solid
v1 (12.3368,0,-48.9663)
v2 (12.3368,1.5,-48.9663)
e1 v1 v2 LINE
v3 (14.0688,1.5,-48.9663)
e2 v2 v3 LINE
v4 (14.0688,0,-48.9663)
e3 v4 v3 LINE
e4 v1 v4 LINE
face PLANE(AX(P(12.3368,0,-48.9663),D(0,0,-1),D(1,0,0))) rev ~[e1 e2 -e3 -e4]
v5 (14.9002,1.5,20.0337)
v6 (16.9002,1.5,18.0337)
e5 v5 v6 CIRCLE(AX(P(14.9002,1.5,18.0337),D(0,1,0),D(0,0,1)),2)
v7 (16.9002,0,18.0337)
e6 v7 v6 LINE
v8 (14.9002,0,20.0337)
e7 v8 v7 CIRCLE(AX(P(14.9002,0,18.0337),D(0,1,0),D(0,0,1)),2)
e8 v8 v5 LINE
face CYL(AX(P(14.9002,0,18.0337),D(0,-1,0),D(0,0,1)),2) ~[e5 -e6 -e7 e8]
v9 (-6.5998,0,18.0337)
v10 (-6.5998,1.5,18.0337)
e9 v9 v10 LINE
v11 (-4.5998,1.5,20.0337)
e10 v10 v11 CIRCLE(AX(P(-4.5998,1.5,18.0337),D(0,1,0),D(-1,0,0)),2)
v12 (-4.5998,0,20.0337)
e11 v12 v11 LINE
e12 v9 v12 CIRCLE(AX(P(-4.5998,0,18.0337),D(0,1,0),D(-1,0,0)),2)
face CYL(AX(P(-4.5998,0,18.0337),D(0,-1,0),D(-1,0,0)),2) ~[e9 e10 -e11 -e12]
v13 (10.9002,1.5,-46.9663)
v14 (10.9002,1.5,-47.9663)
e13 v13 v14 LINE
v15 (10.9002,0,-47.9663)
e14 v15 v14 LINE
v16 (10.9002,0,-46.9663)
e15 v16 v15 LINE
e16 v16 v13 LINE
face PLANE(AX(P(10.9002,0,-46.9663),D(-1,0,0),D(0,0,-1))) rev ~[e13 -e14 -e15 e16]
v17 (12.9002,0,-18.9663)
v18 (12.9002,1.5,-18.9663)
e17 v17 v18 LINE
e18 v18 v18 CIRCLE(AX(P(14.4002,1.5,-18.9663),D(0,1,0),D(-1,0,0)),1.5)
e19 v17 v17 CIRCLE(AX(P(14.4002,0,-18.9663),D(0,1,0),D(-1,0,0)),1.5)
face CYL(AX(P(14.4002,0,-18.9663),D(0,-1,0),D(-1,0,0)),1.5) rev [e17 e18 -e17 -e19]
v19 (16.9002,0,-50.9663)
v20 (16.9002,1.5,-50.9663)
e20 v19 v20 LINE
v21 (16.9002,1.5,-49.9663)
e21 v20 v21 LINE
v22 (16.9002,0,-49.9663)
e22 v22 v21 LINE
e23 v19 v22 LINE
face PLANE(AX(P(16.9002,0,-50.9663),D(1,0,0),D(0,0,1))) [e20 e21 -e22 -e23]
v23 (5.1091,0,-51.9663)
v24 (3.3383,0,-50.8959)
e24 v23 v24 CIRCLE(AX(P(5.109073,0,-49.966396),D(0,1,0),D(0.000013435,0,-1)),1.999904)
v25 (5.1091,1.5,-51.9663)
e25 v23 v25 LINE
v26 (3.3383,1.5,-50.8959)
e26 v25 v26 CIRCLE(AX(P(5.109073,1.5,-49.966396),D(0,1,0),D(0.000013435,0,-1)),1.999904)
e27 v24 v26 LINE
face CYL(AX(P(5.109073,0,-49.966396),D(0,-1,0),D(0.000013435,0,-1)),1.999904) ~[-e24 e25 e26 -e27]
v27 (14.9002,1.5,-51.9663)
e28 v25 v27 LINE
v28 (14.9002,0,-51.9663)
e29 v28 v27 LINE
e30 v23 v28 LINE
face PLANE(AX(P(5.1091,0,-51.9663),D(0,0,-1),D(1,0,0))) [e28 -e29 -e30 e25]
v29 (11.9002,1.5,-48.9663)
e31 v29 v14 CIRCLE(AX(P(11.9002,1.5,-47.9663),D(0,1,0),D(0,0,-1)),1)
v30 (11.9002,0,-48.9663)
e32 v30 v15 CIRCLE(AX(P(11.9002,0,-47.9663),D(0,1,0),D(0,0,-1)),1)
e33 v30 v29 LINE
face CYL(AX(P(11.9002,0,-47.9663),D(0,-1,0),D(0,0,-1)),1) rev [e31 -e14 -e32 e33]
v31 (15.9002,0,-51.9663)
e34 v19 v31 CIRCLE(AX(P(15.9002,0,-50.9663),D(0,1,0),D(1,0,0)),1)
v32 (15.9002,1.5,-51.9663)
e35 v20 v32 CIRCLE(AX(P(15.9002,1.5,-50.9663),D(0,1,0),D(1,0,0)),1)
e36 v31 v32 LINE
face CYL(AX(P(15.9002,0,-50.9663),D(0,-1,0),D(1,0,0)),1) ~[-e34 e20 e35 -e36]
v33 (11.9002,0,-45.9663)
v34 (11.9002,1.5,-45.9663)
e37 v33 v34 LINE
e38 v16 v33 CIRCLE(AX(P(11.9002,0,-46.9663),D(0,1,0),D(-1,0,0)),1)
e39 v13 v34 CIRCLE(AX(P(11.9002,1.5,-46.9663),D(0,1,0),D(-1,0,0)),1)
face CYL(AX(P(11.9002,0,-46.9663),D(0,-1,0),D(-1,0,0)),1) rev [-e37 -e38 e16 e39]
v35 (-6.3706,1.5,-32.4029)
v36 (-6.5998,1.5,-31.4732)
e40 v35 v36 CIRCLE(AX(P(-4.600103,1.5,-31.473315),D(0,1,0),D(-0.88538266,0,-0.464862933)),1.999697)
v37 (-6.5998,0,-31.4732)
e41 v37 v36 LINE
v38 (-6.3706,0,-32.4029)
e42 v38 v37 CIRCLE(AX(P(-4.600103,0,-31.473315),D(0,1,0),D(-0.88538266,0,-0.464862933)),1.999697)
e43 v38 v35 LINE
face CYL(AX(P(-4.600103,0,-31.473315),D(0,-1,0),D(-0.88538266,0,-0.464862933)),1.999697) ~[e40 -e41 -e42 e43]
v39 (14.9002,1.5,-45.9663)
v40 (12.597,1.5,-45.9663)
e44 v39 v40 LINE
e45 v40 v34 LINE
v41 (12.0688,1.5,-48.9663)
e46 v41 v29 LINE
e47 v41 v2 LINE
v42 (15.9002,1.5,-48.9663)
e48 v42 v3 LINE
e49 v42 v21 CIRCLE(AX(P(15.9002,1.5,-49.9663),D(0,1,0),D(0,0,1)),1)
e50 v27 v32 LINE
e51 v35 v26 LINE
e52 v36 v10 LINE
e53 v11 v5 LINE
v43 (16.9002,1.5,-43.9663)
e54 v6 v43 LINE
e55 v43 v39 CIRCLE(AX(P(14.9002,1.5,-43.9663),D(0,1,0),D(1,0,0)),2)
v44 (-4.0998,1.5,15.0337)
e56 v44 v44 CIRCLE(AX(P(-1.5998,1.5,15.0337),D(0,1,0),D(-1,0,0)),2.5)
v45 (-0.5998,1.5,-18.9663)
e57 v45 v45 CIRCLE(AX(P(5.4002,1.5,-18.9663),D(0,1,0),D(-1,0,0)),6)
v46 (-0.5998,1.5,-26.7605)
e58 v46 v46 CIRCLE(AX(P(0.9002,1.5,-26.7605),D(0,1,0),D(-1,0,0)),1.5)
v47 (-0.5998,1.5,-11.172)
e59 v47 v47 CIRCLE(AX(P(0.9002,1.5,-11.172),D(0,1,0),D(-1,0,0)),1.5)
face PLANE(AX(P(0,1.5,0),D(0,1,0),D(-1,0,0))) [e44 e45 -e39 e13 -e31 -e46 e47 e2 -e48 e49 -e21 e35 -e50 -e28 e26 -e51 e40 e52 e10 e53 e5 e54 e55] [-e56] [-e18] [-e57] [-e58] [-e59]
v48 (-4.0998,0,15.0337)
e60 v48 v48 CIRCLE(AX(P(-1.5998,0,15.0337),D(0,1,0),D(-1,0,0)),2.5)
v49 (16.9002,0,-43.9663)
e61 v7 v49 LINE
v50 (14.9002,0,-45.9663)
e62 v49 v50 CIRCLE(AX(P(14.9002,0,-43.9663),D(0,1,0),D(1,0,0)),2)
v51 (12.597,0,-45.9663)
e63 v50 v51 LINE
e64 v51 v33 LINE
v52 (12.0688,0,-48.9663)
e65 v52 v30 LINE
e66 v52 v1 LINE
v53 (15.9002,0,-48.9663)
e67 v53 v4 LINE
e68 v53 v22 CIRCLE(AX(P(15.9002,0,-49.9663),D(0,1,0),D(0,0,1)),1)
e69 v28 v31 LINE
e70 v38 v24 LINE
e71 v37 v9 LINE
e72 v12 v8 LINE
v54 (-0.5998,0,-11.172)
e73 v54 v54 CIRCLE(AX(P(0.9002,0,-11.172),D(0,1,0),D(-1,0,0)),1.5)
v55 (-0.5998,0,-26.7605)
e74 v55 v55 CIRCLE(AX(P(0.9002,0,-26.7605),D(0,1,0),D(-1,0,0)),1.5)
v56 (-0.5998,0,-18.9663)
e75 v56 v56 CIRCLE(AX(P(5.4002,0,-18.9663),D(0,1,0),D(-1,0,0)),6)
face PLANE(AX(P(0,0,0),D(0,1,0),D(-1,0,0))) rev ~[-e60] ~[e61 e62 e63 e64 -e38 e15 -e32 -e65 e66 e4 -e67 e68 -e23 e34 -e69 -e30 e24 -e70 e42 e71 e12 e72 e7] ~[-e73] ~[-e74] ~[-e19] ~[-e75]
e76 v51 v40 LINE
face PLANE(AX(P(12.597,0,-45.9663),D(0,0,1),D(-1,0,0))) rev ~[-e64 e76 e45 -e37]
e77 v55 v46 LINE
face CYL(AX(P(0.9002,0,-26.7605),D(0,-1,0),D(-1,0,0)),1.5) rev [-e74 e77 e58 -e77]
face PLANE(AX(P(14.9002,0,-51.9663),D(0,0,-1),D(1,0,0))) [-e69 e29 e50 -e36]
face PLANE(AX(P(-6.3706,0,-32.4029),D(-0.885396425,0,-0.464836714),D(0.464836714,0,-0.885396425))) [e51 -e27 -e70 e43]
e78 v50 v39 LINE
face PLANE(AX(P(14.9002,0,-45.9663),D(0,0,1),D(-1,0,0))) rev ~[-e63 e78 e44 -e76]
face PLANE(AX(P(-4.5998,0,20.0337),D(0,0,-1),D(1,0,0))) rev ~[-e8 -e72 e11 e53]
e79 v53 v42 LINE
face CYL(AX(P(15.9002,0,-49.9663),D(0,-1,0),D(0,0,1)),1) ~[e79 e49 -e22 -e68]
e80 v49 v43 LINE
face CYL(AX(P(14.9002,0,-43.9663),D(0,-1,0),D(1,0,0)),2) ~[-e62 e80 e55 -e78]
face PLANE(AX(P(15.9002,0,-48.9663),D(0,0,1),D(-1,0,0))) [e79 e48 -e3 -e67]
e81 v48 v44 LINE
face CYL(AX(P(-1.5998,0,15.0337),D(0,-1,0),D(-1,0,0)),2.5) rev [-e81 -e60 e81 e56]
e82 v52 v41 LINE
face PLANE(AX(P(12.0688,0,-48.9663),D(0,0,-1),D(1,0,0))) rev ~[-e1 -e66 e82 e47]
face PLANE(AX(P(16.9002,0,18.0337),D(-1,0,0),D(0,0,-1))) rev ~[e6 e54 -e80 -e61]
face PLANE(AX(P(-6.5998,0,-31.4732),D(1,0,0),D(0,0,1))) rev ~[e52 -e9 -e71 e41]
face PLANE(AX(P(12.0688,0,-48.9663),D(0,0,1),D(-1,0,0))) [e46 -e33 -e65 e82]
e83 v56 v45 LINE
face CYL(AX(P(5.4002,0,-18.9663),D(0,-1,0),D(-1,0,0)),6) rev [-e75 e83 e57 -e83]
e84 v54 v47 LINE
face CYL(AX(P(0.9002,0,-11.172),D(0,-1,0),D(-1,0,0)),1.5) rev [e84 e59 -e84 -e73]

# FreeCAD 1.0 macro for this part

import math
import FreeCAD as App
import Part
import Sketcher
from FreeCAD import Vector
Q = App.Units.Quantity

doc = App.newDocument("Part")
body = doc.addObject("PartDesign::Body", "Body")

sketch1 = body.newObject("Sketcher::SketchObject", "Sketch")
sketch1.AttachmentSupport = (doc.getObject("XZ_Plane"), [""])
sketch1.MapMode = "FlatFace"
sketch1.addGeometry(Part.ArcOfCircle(Part.Circle(Vector(-4.5998, 18.0337, 0), Vector(0, 0, 1), 2), math.radians(90), math.radians(180)), False)
sketch1.addGeometry(Part.LineSegment(Vector(-4.5998, 20.0337, 0), Vector(14.9002, 20.0337, 0)), False)
sketch1.addGeometry(Part.ArcOfCircle(Part.Circle(Vector(14.9002, 18.0337, 0), Vector(0, 0, 1), 2), math.radians(0), math.radians(90)), False)
sketch1.addGeometry(Part.LineSegment(Vector(16.9002, 18.0337, 0), Vector(16.9002, -43.9663, 0)), False)
sketch1.addGeometry(Part.ArcOfCircle(Part.Circle(Vector(14.9002, -43.9663, 0), Vector(0, 0, 1), 2), math.radians(-90), math.radians(0)), False)
sketch1.addGeometry(Part.LineSegment(Vector(14.9002, -45.9663, 0), Vector(11.9002, -45.9663, 0)), False)
sketch1.addGeometry(Part.ArcOfCircle(Part.Circle(Vector(11.9002, -46.9663, 0), Vector(0, 0, 1), 1), math.radians(90), math.radians(180)), False)
sketch1.addGeometry(Part.LineSegment(Vector(10.9002, -46.9663, 0), Vector(10.9002, -47.9663, 0)), False)
sketch1.addGeometry(Part.ArcOfCircle(Part.Circle(Vector(11.9002, -47.9663, 0), Vector(0, 0, 1), 1), math.radians(180), math.radians(270)), False)
sketch1.addGeometry(Part.LineSegment(Vector(11.9002, -48.9663, 0), Vector(15.9002, -48.9663, 0)), False)
sketch1.addGeometry(Part.ArcOfCircle(Part.Circle(Vector(15.9002, -49.9663, 0), Vector(0, 0, 1), 1), math.radians(0), math.radians(90)), False)
sketch1.addGeometry(Part.LineSegment(Vector(16.9002, -49.9663, 0), Vector(16.9002, -50.9663, 0)), False)
sketch1.addGeometry(Part.ArcOfCircle(Part.Circle(Vector(15.9002, -50.9663, 0), Vector(0, 0, 1), 1), math.radians(-90), math.radians(0)), False)
sketch1.addGeometry(Part.LineSegment(Vector(15.9002, -51.9663, 0), Vector(5.1091, -51.9663, 0)), False)
sketch1.addGeometry(Part.ArcOfCircle(Part.Circle(Vector(5.1091, -49.9663, 0), Vector(0, 0, 1), 2), math.radians(-152.302303), math.radians(-90)), False)
sketch1.addGeometry(Part.LineSegment(Vector(3.3383, -50.8959, 0), Vector(-6.3706, -32.4029, 0)), False)
sketch1.addGeometry(Part.ArcOfCircle(Part.Circle(Vector(-4.5998, -31.4732, 0), Vector(0, 0, 1), 2.000019), math.radians(180), math.radians(207.700234)), False)
sketch1.addGeometry(Part.LineSegment(Vector(-6.5998, -31.4732, 0), Vector(-6.5998, 18.0337, 0)), False)
sketch1.addGeometry(Part.Circle(Vector(14.4002, -18.9663, 0), Vector(0, 0, 1), 1.5), False)
sketch1.addGeometry(Part.Circle(Vector(5.4002, -18.9663, 0), Vector(0, 0, 1), 6), False)
sketch1.addGeometry(Part.Circle(Vector(0.9002, -26.7605, 0), Vector(0, 0, 1), 1.5), False)
sketch1.addGeometry(Part.Circle(Vector(0.9002, -11.172, 0), Vector(0, 0, 1), 1.5), False)
sketch1.addGeometry(Part.Circle(Vector(-1.5998, 15.0337, 0), Vector(0, 0, 1), 2.5), False)
sketch1.addConstraint(Sketcher.Constraint("Tangent", 0, 1, 1, 1))
sketch1.addConstraint(Sketcher.Constraint("Tangent", 1, 2, 2, 2))
sketch1.addConstraint(Sketcher.Constraint("Tangent", 2, 1, 3, 1))
sketch1.addConstraint(Sketcher.Constraint("Tangent", 3, 2, 4, 2))
sketch1.addConstraint(Sketcher.Constraint("Tangent", 4, 1, 5, 1))
sketch1.addConstraint(Sketcher.Constraint("Tangent", 5, 2, 6, 1))
sketch1.addConstraint(Sketcher.Constraint("Tangent", 6, 2, 7, 1))
sketch1.addConstraint(Sketcher.Constraint("Tangent", 7, 2, 8, 1))
sketch1.addConstraint(Sketcher.Constraint("Tangent", 8, 2, 9, 1))
sketch1.addConstraint(Sketcher.Constraint("Tangent", 9, 2, 10, 2))
sketch1.addConstraint(Sketcher.Constraint("Tangent", 10, 1, 11, 1))
sketch1.addConstraint(Sketcher.Constraint("Tangent", 11, 2, 12, 2))
sketch1.addConstraint(Sketcher.Constraint("Tangent", 12, 1, 13, 1))
sketch1.addConstraint(Sketcher.Constraint("Tangent", 13, 2, 14, 2))
sketch1.addConstraint(Sketcher.Constraint("Tangent", 14, 1, 15, 1))
sketch1.addConstraint(Sketcher.Constraint("Tangent", 15, 2, 16, 2))
sketch1.addConstraint(Sketcher.Constraint("Tangent", 16, 1, 17, 1))
sketch1.addConstraint(Sketcher.Constraint("Tangent", 17, 2, 0, 2))
sketch1.addConstraint(Sketcher.Constraint("Horizontal", 1))
sketch1.addConstraint(Sketcher.Constraint("Vertical", 3))
sketch1.addConstraint(Sketcher.Constraint("Horizontal", 5))
sketch1.addConstraint(Sketcher.Constraint("Vertical", 7))
sketch1.addConstraint(Sketcher.Constraint("Horizontal", 9))
sketch1.addConstraint(Sketcher.Constraint("Vertical", 11))
sketch1.addConstraint(Sketcher.Constraint("Horizontal", 13))
sketch1.addConstraint(Sketcher.Constraint("Vertical", 17))
sketch1.addConstraint(Sketcher.Constraint("Equal", 0, 2))
sketch1.addConstraint(Sketcher.Constraint("Equal", 2, 4))
sketch1.addConstraint(Sketcher.Constraint("Equal", 6, 8))
sketch1.addConstraint(Sketcher.Constraint("Equal", 8, 10))
sketch1.addConstraint(Sketcher.Constraint("Equal", 10, 12))
sketch1.addConstraint(Sketcher.Constraint("Equal", 4, 14))
sketch1.addConstraint(Sketcher.Constraint("Equal", 14, 16))
sketch1.addConstraint(Sketcher.Constraint("Equal", 18, 20))
sketch1.addConstraint(Sketcher.Constraint("Equal", 20, 21))
sketch1.addConstraint(Sketcher.Constraint("Horizontal", 10, 3, 14, 3))
sketch1.addConstraint(Sketcher.Constraint("Horizontal", 18, 3, 19, 3))
sketch1.addConstraint(Sketcher.Constraint("Vertical", 20, 3, 21, 3))
sketch1.addConstraint(Sketcher.Constraint("Vertical", 3, 2, 10, 1))
sketch1.addConstraint(Sketcher.Constraint("Equal", 7, 11))
sketch1.addConstraint(Sketcher.Constraint("Diameter", 18, 3.0))
sketch1.addConstraint(Sketcher.Constraint("Diameter", 19, 12.0))
sketch1.addConstraint(Sketcher.Constraint("Diameter", 22, 5.0))
sketch1.addConstraint(Sketcher.Constraint("Radius", 6, 1.0))
sketch1.addConstraint(Sketcher.Constraint("DistanceX", 5, 2, 5, 1, 3.0))
sketch1.addConstraint(Sketcher.Constraint("DistanceY", 7, 2, 7, 1, 1.0))
sketch1.addConstraint(Sketcher.Constraint("DistanceX", 19, 3, 18, 3, 9.0))
sketch1.addConstraint(Sketcher.Constraint("DistanceX", 0, 3, 22, 3, 3.0))
sketch1.addConstraint(Sketcher.Constraint("DistanceY", 22, 3, 0, 3, 3.0))
sketch1.addConstraint(Sketcher.Constraint("DistanceY", 19, 3, 0, 1, 39.0))
sketch1.addConstraint(Sketcher.Constraint("DistanceX", 16, 1, 19, 3, 12.0))
sketch1.addConstraint(Sketcher.Constraint("DistanceX", 6, 3, 18, 3, 2.5))
sketch1.addConstraint(Sketcher.Constraint("DistanceX", 22, 3, 21, 3, 2.5))
sketch1.addConstraint(Sketcher.Constraint("DistanceY", 3, 2, 3, 1, 62.0))
sketch1.addConstraint(Sketcher.Constraint("Angle", 15, Q("117.6997 deg")))
sketch1.addConstraint(Sketcher.Constraint("DistanceX", 13, 2, 13, 1, 10.791))
sketch1.addConstraint(Sketcher.Constraint("DistanceX", -1, 1, 14, 3, 5.109))
sketch1.addConstraint(Sketcher.Constraint("DistanceY", 21, 3, -1, 1, 11.172))
sketch1.addConstraint(Sketcher.Constraint("DistanceY", 14, 1, -1, 1, 50.896))
sketch1.addConstraint(Sketcher.Constraint("DistanceY", 20, 3, -1, 1, 26.7605))
pad1 = body.newObject("PartDesign::Pad", "Pad")
pad1.Profile = sketch1
pad1.Length = 1.5
pad1.Reversed = True

doc.recompute()
